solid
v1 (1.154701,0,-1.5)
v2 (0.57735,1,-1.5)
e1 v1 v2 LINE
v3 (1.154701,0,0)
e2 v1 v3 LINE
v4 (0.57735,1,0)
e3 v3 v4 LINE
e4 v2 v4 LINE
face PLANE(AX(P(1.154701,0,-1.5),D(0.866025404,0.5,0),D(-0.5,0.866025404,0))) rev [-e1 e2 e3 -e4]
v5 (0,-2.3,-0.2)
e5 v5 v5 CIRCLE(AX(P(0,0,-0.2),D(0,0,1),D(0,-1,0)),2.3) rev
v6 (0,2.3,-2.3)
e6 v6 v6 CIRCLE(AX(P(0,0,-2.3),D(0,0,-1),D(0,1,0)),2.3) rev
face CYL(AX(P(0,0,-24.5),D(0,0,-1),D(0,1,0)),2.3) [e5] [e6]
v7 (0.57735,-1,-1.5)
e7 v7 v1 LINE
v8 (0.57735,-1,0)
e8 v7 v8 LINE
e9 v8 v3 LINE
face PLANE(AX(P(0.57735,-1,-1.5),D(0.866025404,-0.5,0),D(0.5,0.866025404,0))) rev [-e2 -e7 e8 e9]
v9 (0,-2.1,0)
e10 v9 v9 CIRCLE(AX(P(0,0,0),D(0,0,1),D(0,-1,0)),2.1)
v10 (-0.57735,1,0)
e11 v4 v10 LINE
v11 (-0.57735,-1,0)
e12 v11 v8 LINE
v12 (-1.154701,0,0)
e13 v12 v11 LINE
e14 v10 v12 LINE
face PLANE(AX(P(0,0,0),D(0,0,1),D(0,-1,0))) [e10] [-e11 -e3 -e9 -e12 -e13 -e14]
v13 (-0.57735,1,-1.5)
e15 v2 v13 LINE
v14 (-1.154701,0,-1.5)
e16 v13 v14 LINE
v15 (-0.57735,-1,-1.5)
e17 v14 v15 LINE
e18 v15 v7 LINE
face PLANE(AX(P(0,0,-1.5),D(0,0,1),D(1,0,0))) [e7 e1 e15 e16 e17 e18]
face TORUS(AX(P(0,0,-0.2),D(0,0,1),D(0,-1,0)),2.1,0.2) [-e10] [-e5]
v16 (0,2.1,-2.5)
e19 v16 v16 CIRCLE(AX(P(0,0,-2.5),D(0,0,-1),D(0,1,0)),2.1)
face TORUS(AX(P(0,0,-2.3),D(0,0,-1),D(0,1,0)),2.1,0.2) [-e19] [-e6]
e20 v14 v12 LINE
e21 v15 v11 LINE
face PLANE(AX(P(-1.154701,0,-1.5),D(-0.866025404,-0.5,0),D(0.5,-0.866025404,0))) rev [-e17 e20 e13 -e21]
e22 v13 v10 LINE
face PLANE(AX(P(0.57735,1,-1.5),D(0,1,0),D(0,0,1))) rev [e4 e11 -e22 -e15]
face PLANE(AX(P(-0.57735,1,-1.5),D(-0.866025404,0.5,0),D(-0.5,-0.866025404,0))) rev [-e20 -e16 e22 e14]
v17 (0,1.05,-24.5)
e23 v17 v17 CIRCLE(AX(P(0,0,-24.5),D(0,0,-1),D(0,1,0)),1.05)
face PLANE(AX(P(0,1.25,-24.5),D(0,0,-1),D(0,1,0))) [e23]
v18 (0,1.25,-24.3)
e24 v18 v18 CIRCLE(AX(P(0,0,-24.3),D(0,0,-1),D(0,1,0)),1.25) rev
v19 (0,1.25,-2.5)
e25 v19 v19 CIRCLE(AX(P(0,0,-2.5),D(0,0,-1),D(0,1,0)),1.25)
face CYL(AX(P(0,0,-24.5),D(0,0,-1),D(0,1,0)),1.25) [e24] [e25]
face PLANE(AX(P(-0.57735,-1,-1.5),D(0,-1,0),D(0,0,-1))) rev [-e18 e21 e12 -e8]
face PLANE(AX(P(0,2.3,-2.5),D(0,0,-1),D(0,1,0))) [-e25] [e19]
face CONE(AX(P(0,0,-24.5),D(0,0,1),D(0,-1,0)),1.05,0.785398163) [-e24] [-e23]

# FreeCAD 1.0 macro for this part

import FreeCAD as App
import Part
import Sketcher
from FreeCAD import Vector
Q = App.Units.Quantity


def edges_at(feature, points):
    """Names of the edges that pass closest to the given points."""
    edges = feature.Shape.Edges
    near = lambda p: min(range(len(edges)), key=lambda i: edges[i].distToShape(Part.Vertex(*p))[0])
    return sorted({f"Edge{near(p) + 1}" for p in points})

doc = App.newDocument("Part")
body = doc.addObject("PartDesign::Body", "Body")

sketch1 = body.newObject("Sketcher::SketchObject", "Sketch")
sketch1.AttachmentSupport = (doc.getObject("YZ_Plane"), [""])
sketch1.MapMode = "FlatFace"
sketch1.addGeometry(Part.LineSegment(Vector(2.3, 0, 0), Vector(0, 0, 0)), False)
sketch1.addGeometry(Part.LineSegment(Vector(0, 0, 0), Vector(0, -24.5, 0)), False)
sketch1.addGeometry(Part.LineSegment(Vector(0, -24.5, 0), Vector(1.2, -24.5, 0)), False)
sketch1.addGeometry(Part.LineSegment(Vector(1.2, -24.5, 0), Vector(1.2, -2.5, 0)), False)
sketch1.addGeometry(Part.LineSegment(Vector(1.2, -2.5, 0), Vector(2.3, -2.5, 0)), False)
sketch1.addGeometry(Part.LineSegment(Vector(2.3, -2.5, 0), Vector(2.3, 0, 0)), False)
sketch1.addConstraint(Sketcher.Constraint("Coincident", 0, 2, 1, 1))
sketch1.addConstraint(Sketcher.Constraint("Coincident", 1, 2, 2, 1))
sketch1.addConstraint(Sketcher.Constraint("Coincident", 2, 2, 3, 1))
sketch1.addConstraint(Sketcher.Constraint("Coincident", 3, 2, 4, 1))
sketch1.addConstraint(Sketcher.Constraint("Coincident", 4, 2, 5, 1))
sketch1.addConstraint(Sketcher.Constraint("Coincident", 5, 2, 0, 1))
sketch1.addConstraint(Sketcher.Constraint("Horizontal", 0))
sketch1.addConstraint(Sketcher.Constraint("Vertical", 1))
sketch1.addConstraint(Sketcher.Constraint("Horizontal", 2))
sketch1.addConstraint(Sketcher.Constraint("Vertical", 3))
sketch1.addConstraint(Sketcher.Constraint("Horizontal", 4))
sketch1.addConstraint(Sketcher.Constraint("Vertical", 5))
sketch1.addConstraint(Sketcher.Constraint("Coincident", 0, 2, -1, 1))
sketch1.addConstraint(Sketcher.Constraint("DistanceY", 3, 1, 3, 2, Q("22 mm")))
sketch1.addConstraint(Sketcher.Constraint("DistanceX", 0, 2, 0, 1, Q("2.3 mm")))
sketch1.addConstraint(Sketcher.Constraint("DistanceY", 1, 2, 1, 1, Q("24.5 mm")))
sketch1.addConstraint(Sketcher.Constraint("DistanceX", 2, 1, 2, 2, Q("1.25 mm")))
revolution = body.newObject("PartDesign::Revolution", "Revolution")
revolution.Profile = sketch1
revolution.ReferenceAxis = (sketch1, ["V_Axis"])
revolution.Angle = 360
doc.recompute()

fillet = body.newObject("PartDesign::Fillet", "Fillet")
fillet.Base = (revolution, edges_at(revolution, [(0, -2.3, -2.5), (0, -2.3, 0)]))
fillet.Radius = 0.2
doc.recompute()

chamfer = body.newObject("PartDesign::Chamfer", "Chamfer")
chamfer.Base = (fillet, edges_at(fillet, [(0, -1.25, -24.5)]))
chamfer.Size = 0.2

sketch2 = body.newObject("Sketcher::SketchObject", "Sketch001")
sketch2.AttachmentSupport = (doc.getObject("XY_Plane"), [""])
sketch2.MapMode = "FlatFace"
sketch2.addGeometry(Part.LineSegment(Vector(1.2, 0, 0), Vector(0.6, 1, 0)), False)
sketch2.addGeometry(Part.LineSegment(Vector(0.6, 1, 0), Vector(-0.6, 1, 0)), False)
sketch2.addGeometry(Part.LineSegment(Vector(-0.6, 1, 0), Vector(-1.2, 0, 0)), False)
sketch2.addGeometry(Part.LineSegment(Vector(-1.2, 0, 0), Vector(-0.6, -1, 0)), False)
sketch2.addGeometry(Part.LineSegment(Vector(-0.6, -1, 0), Vector(0.6, -1, 0)), False)
sketch2.addGeometry(Part.LineSegment(Vector(0.6, -1, 0), Vector(1.2, 0, 0)), False)
sketch2.addConstraint(Sketcher.Constraint("Coincident", 0, 2, 1, 1))
sketch2.addConstraint(Sketcher.Constraint("Coincident", 1, 2, 2, 1))
sketch2.addConstraint(Sketcher.Constraint("Coincident", 2, 2, 3, 1))
sketch2.addConstraint(Sketcher.Constraint("Coincident", 3, 2, 4, 1))
sketch2.addConstraint(Sketcher.Constraint("Coincident", 4, 2, 5, 1))
sketch2.addConstraint(Sketcher.Constraint("Coincident", 5, 2, 0, 1))
sketch2.addConstraint(Sketcher.Constraint("Horizontal", 1))
sketch2.addConstraint(Sketcher.Constraint("Horizontal", 4))
sketch2.addConstraint(Sketcher.Constraint("Symmetric", 0, 2, 3, 2, -1, 1))
sketch2.addConstraint(Sketcher.Constraint("Symmetric", 2, 2, 5, 2, -1, 1))
sketch2.addConstraint(Sketcher.Constraint("PointOnObject", 2, 2, -1))
sketch2.addConstraint(Sketcher.Constraint("Parallel", 2, 5))
sketch2.addConstraint(Sketcher.Constraint("Vertical", 1, 2, 3, 2))
sketch2.addConstraint(Sketcher.Constraint("Angle", 0, Q("120 deg")))
sketch2.addConstraint(Sketcher.Constraint("DistanceY", -1, 1, 0, 2, Q("1 mm")))
sketch2.addConstraint(Sketcher.Constraint("DistanceX", 1, 2, 1, 1, Q("1.154701 mm")))
pocket1 = body.newObject("PartDesign::Pocket", "Pocket")
pocket1.Profile = sketch2
pocket1.Length = 1.5

doc.recompute()
